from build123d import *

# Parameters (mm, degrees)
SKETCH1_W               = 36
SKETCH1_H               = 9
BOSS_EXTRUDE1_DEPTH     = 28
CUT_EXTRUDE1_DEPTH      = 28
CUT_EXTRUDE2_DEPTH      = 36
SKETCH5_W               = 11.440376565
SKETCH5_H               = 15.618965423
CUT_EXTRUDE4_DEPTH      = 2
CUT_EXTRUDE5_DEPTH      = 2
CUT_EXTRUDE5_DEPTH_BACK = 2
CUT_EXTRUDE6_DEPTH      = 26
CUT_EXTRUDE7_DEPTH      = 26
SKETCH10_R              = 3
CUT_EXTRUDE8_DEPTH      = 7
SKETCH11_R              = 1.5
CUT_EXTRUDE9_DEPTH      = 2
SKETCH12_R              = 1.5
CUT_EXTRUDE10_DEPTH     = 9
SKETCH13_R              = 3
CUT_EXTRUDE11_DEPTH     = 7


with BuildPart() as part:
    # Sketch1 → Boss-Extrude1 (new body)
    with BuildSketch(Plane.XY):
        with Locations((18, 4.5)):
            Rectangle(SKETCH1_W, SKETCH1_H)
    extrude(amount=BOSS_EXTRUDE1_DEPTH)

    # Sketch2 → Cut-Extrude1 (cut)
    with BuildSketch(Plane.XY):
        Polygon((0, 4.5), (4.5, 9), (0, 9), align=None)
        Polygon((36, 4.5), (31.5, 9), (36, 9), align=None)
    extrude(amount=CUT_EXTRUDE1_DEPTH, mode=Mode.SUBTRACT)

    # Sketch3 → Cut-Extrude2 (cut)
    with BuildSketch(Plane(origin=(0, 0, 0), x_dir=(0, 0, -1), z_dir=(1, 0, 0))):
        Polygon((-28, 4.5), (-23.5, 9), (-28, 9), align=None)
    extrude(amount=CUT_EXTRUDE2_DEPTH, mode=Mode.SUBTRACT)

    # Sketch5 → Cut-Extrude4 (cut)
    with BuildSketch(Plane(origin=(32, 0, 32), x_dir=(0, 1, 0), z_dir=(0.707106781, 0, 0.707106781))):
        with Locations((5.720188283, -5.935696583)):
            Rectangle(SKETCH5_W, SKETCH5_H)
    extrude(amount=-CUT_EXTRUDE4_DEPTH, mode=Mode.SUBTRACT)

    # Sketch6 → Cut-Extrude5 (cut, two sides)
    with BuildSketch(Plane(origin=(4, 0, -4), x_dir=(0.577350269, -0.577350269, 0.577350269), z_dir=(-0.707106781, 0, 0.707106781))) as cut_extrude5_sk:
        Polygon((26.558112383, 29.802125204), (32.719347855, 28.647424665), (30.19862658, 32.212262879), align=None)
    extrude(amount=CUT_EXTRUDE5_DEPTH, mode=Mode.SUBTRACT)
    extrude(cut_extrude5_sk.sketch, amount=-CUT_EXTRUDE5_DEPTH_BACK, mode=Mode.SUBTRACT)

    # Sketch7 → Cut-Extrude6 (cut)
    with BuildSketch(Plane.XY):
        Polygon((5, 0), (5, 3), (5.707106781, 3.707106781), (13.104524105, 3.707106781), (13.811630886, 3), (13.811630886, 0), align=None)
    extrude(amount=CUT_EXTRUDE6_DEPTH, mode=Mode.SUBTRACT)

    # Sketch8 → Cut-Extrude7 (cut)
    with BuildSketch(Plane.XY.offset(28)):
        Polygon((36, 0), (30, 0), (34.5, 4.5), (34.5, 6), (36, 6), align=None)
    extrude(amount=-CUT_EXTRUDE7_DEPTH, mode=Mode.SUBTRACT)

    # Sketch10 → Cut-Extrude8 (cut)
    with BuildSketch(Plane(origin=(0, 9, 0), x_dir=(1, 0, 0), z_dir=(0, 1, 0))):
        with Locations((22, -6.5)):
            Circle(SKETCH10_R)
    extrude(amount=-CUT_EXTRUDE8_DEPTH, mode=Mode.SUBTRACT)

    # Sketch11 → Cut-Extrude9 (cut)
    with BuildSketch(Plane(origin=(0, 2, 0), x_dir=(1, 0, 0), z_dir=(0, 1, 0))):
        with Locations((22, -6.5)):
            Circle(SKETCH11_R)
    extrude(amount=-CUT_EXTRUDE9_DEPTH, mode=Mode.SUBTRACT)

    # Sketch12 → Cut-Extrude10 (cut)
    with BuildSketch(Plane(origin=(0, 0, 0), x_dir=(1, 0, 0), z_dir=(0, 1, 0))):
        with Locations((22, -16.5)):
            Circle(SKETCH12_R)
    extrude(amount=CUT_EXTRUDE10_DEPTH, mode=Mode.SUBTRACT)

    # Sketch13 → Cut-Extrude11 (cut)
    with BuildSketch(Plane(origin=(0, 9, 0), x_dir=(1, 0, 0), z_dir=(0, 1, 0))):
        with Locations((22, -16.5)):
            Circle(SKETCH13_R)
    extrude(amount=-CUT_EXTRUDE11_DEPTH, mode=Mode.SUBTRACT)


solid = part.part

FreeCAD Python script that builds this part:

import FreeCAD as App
import Part
import Sketcher
from FreeCAD import Vector

doc = App.newDocument("Part")
body = doc.addObject("PartDesign::Body", "Body")

sketch1 = body.newObject("Sketcher::SketchObject", "Sketch")
sketch1.AttachmentSupport = (doc.getObject("XY_Plane"), [""])
sketch1.MapMode = "FlatFace"
sketch1.addGeometry(Part.LineSegment(Vector(0, 9, 0), Vector(0, 0, 0)), False)
sketch1.addGeometry(Part.LineSegment(Vector(0, 0, 0), Vector(36, 0, 0)), False)
sketch1.addGeometry(Part.LineSegment(Vector(36, 0, 0), Vector(36, 9, 0)), False)
sketch1.addGeometry(Part.LineSegment(Vector(36, 9, 0), Vector(0, 9, 0)), False)
sketch1.addConstraint(Sketcher.Constraint("Coincident", 0, 2, 1, 1))
sketch1.addConstraint(Sketcher.Constraint("Coincident", 1, 2, 2, 1))
sketch1.addConstraint(Sketcher.Constraint("Coincident", 2, 2, 3, 1))
sketch1.addConstraint(Sketcher.Constraint("Coincident", 3, 2, 0, 1))
sketch1.addConstraint(Sketcher.Constraint("Vertical", 0))
sketch1.addConstraint(Sketcher.Constraint("Horizontal", 1))
sketch1.addConstraint(Sketcher.Constraint("Vertical", 2))
sketch1.addConstraint(Sketcher.Constraint("Horizontal", 3))
sketch1.addConstraint(Sketcher.Constraint("Coincident", 0, 2, -1, 1))
sketch1.addConstraint(Sketcher.Constraint("DistanceX", 1, 1, 1, 2, 36.0))
sketch1.addConstraint(Sketcher.Constraint("DistanceY", 0, 2, 0, 1, 9.0))
pad1 = body.newObject("PartDesign::Pad", "Pad")
pad1.Profile = sketch1
pad1.Length = 28

sketch2 = body.newObject("Sketcher::SketchObject", "Sketch001")
sketch2.AttachmentSupport = (doc.getObject("XY_Plane"), [""])
sketch2.MapMode = "FlatFace"
sketch2.addGeometry(Part.LineSegment(Vector(0, 4.5, 0), Vector(4.5, 9, 0)), False)
sketch2.addGeometry(Part.LineSegment(Vector(4.5, 9, 0), Vector(0, 9, 0)), False)
sketch2.addGeometry(Part.LineSegment(Vector(0, 9, 0), Vector(0, 4.5, 0)), False)
sketch2.addGeometry(Part.LineSegment(Vector(31.5, 9, 0), Vector(36, 4.5, 0)), False)
sketch2.addGeometry(Part.LineSegment(Vector(36, 4.5, 0), Vector(36, 9, 0)), False)
sketch2.addGeometry(Part.LineSegment(Vector(36, 9, 0), Vector(31.5, 9, 0)), False)
sketch2.addConstraint(Sketcher.Constraint("Coincident", 0, 2, 1, 1))
sketch2.addConstraint(Sketcher.Constraint("Coincident", 1, 2, 2, 1))
sketch2.addConstraint(Sketcher.Constraint("Coincident", 2, 2, 0, 1))
sketch2.addConstraint(Sketcher.Constraint("Coincident", 3, 2, 4, 1))
sketch2.addConstraint(Sketcher.Constraint("Coincident", 4, 2, 5, 1))
sketch2.addConstraint(Sketcher.Constraint("Coincident", 5, 2, 3, 1))
sketch2.addConstraint(Sketcher.Constraint("Horizontal", 1))
sketch2.addConstraint(Sketcher.Constraint("Vertical", 2))
sketch2.addConstraint(Sketcher.Constraint("Vertical", 4))
sketch2.addConstraint(Sketcher.Constraint("Horizontal", 5))
sketch2.addConstraint(Sketcher.Constraint("PointOnObject", 1, 2, -2))
sketch2.addConstraint(Sketcher.Constraint("Perpendicular", 0, 3))
sketch2.addConstraint(Sketcher.Constraint("Horizontal", 2, 2, 3, 2))
sketch2.addConstraint(Sketcher.Constraint("Horizontal", 1, 2, 4, 2))
sketch2.addConstraint(Sketcher.Constraint("Equal", 1, 5))
sketch2.addConstraint(Sketcher.Constraint("DistanceX", 1, 2, 1, 1, 4.5))
sketch2.addConstraint(Sketcher.Constraint("DistanceY", -1, 1, 0, 2, 9.0))
sketch2.addConstraint(Sketcher.Constraint("DistanceX", -1, 1, 3, 2, 36.0))
pocket1 = body.newObject("PartDesign::Pocket", "Pocket")
pocket1.Profile = sketch2
pocket1.Length = 28
pocket1.Reversed = True

sketch3 = body.newObject("Sketcher::SketchObject", "Sketch002")
sketch3.AttachmentSupport = (doc.getObject("YZ_Plane"), [""])
sketch3.MapMode = "FlatFace"
sketch3.addGeometry(Part.LineSegment(Vector(4.5, 28, 0), Vector(9, 23.5, 0)), False)
sketch3.addGeometry(Part.LineSegment(Vector(9, 23.5, 0), Vector(9, 28, 0)), False)
sketch3.addGeometry(Part.LineSegment(Vector(9, 28, 0), Vector(4.5, 28, 0)), False)
sketch3.addConstraint(Sketcher.Constraint("Coincident", 0, 2, 1, 1))
sketch3.addConstraint(Sketcher.Constraint("Coincident", 1, 2, 2, 1))
sketch3.addConstraint(Sketcher.Constraint("Coincident", 2, 2, 0, 1))
sketch3.addConstraint(Sketcher.Constraint("Vertical", 1))
sketch3.addConstraint(Sketcher.Constraint("Horizontal", 2))
sketch3.addConstraint(Sketcher.Constraint("Equal", 2, 1))
sketch3.addConstraint(Sketcher.Constraint("DistanceX", 2, 2, 2, 1, 4.5))
sketch3.addConstraint(Sketcher.Constraint("DistanceX", -1, 1, 0, 2, 9.0))
sketch3.addConstraint(Sketcher.Constraint("DistanceY", -1, 1, 1, 2, 28.0))
pocket2 = body.newObject("PartDesign::Pocket", "Pocket001")
pocket2.Profile = sketch3
pocket2.Length = 36
pocket2.Reversed = True

sketch4 = body.newObject("Sketcher::SketchObject", "Sketch003")
sketch4.Placement = App.Placement(Vector(32, 0, 32), App.Rotation(Vector(0, 1, 0), Vector(-0.707106781, 0, 0.707106781), Vector(0.707106781, 0, 0.707106781), "ZXY"))
sketch4.addGeometry(Part.LineSegment(Vector(0, 2, 0), Vector(0, -14, 0)), False)
sketch4.addGeometry(Part.LineSegment(Vector(0, -14, 0), Vector(11, -14, 0)), False)
sketch4.addGeometry(Part.LineSegment(Vector(11, -14, 0), Vector(11, 2, 0)), False)
sketch4.addGeometry(Part.LineSegment(Vector(11, 2, 0), Vector(0, 2, 0)), False)
sketch4.addConstraint(Sketcher.Constraint("Coincident", 0, 2, 1, 1))
sketch4.addConstraint(Sketcher.Constraint("Coincident", 1, 2, 2, 1))
sketch4.addConstraint(Sketcher.Constraint("Coincident", 2, 2, 3, 1))
sketch4.addConstraint(Sketcher.Constraint("Coincident", 3, 2, 0, 1))
sketch4.addConstraint(Sketcher.Constraint("Vertical", 0))
sketch4.addConstraint(Sketcher.Constraint("Horizontal", 1))
sketch4.addConstraint(Sketcher.Constraint("Vertical", 2))
sketch4.addConstraint(Sketcher.Constraint("Horizontal", 3))
sketch4.addConstraint(Sketcher.Constraint("PointOnObject", 0, 2, -2))
sketch4.addConstraint(Sketcher.Constraint("DistanceX", 1, 1, 1, 2, 11.440377))
sketch4.addConstraint(Sketcher.Constraint("DistanceY", 0, 2, 0, 1, 15.618965))
sketch4.addConstraint(Sketcher.Constraint("DistanceY", 0, 2, -1, 1, 13.745179))
pocket3 = body.newObject("PartDesign::Pocket", "Pocket002")
pocket3.Profile = sketch4
pocket3.Length = 2

sketch5 = body.newObject("Sketcher::SketchObject", "Sketch004")
sketch5.Placement = App.Placement(Vector(4, 0, -4), App.Rotation(Vector(0.577350269, -0.577350269, 0.577350269), Vector(0.40824829, 0.81649658, 0.40824829), Vector(-0.707106781, 0, 0.707106781), "ZXY"))
sketch5.addGeometry(Part.LineSegment(Vector(26.6, 29.8, 0), Vector(32.7, 28.6, 0)), False)
sketch5.addGeometry(Part.LineSegment(Vector(32.7, 28.6, 0), Vector(30.2, 32.2, 0)), False)
sketch5.addGeometry(Part.LineSegment(Vector(30.2, 32.2, 0), Vector(26.6, 29.8, 0)), False)
sketch5.addConstraint(Sketcher.Constraint("Coincident", 0, 2, 1, 1))
sketch5.addConstraint(Sketcher.Constraint("Coincident", 1, 2, 2, 1))
sketch5.addConstraint(Sketcher.Constraint("Coincident", 2, 2, 0, 1))
sketch5.addConstraint(Sketcher.Constraint("Equal", 1, 2))
sketch5.addConstraint(Sketcher.Constraint("DistanceY", 0, 2, 2, 2, 1.154701))
sketch5.addConstraint(Sketcher.Constraint("DistanceX", 1, 2, 0, 2, 2.520721))
sketch5.addConstraint(Sketcher.Constraint("DistanceY", 0, 2, 1, 2, 3.564838))
sketch5.addConstraint(Sketcher.Constraint("DistanceX", -1, 1, 0, 2, 32.719348))
sketch5.addConstraint(Sketcher.Constraint("DistanceY", -1, 1, 0, 2, 28.647425))
pocket4 = body.newObject("PartDesign::Pocket", "Pocket003")
pocket4.Profile = sketch5
pocket4.Type = "ThroughAll"
pocket4.Midplane = True

sketch6 = body.newObject("Sketcher::SketchObject", "Sketch005")
sketch6.AttachmentSupport = (doc.getObject("XY_Plane"), [""])
sketch6.MapMode = "FlatFace"
sketch6.addGeometry(Part.LineSegment(Vector(5, 3, 0), Vector(5, 0, 0)), False)
sketch6.addGeometry(Part.LineSegment(Vector(5, 0, 0), Vector(13.8, 0, 0)), False)
sketch6.addGeometry(Part.LineSegment(Vector(13.8, 0, 0), Vector(13.8, 3, 0)), False)
sketch6.addGeometry(Part.LineSegment(Vector(13.8, 3, 0), Vector(13.1, 3.7, 0)), False)
sketch6.addGeometry(Part.LineSegment(Vector(13.1, 3.7, 0), Vector(5.7, 3.7, 0)), False)
sketch6.addGeometry(Part.LineSegment(Vector(5.7, 3.7, 0), Vector(5, 3, 0)), False)
sketch6.addConstraint(Sketcher.Constraint("Coincident", 0, 2, 1, 1))
sketch6.addConstraint(Sketcher.Constraint("Coincident", 1, 2, 2, 1))
sketch6.addConstraint(Sketcher.Constraint("Coincident", 2, 2, 3, 1))
sketch6.addConstraint(Sketcher.Constraint("Coincident", 3, 2, 4, 1))
sketch6.addConstraint(Sketcher.Constraint("Coincident", 4, 2, 5, 1))
sketch6.addConstraint(Sketcher.Constraint("Coincident", 5, 2, 0, 1))
sketch6.addConstraint(Sketcher.Constraint("Vertical", 0))
sketch6.addConstraint(Sketcher.Constraint("Horizontal", 1))
sketch6.addConstraint(Sketcher.Constraint("Vertical", 2))
sketch6.addConstraint(Sketcher.Constraint("Horizontal", 4))
sketch6.addConstraint(Sketcher.Constraint("PointOnObject", 0, 2, -1))
sketch6.addConstraint(Sketcher.Constraint("Perpendicular", 3, 5))
sketch6.addConstraint(Sketcher.Constraint("Horizontal", 2, 2, 5, 2))
sketch6.addConstraint(Sketcher.Constraint("Equal", 3, 5))
sketch6.addConstraint(Sketcher.Constraint("DistanceY", 0, 2, 0, 1, 3.0))
sketch6.addConstraint(Sketcher.Constraint("Distance", 3, 1.0))
sketch6.addConstraint(Sketcher.Constraint("DistanceX", -1, 1, 0, 2, 5.0))
sketch6.addConstraint(Sketcher.Constraint("DistanceX", 1, 1, 1, 2, 8.811631))
pocket5 = body.newObject("PartDesign::Pocket", "Pocket004")
pocket5.Profile = sketch6
pocket5.Length = 26
pocket5.Reversed = True

sketch7 = body.newObject("Sketcher::SketchObject", "Sketch006")
sketch7.AttachmentSupport = (doc.getObject("XY_Plane"), [""])
sketch7.MapMode = "FlatFace"
sketch7.AttachmentOffset = App.Placement(Vector(0, 0, 28), App.Rotation())
sketch7.addGeometry(Part.LineSegment(Vector(30, 0, 0), Vector(36, 0, 0)), False)
sketch7.addGeometry(Part.LineSegment(Vector(36, 0, 0), Vector(36, 6, 0)), False)
sketch7.addGeometry(Part.LineSegment(Vector(36, 6, 0), Vector(34.5, 6, 0)), False)
sketch7.addGeometry(Part.LineSegment(Vector(34.5, 6, 0), Vector(34.5, 4.5, 0)), False)
sketch7.addGeometry(Part.LineSegment(Vector(34.5, 4.5, 0), Vector(30, 0, 0)), False)
sketch7.addConstraint(Sketcher.Constraint("Coincident", 0, 2, 1, 1))
sketch7.addConstraint(Sketcher.Constraint("Coincident", 1, 2, 2, 1))
sketch7.addConstraint(Sketcher.Constraint("Coincident", 2, 2, 3, 1))
sketch7.addConstraint(Sketcher.Constraint("Coincident", 3, 2, 4, 1))
sketch7.addConstraint(Sketcher.Constraint("Coincident", 4, 2, 0, 1))
sketch7.addConstraint(Sketcher.Constraint("Horizontal", 0))
sketch7.addConstraint(Sketcher.Constraint("Vertical", 1))
sketch7.addConstraint(Sketcher.Constraint("Horizontal", 2))
sketch7.addConstraint(Sketcher.Constraint("Vertical", 3))
sketch7.addConstraint(Sketcher.Constraint("PointOnObject", 0, 2, -1))
sketch7.addConstraint(Sketcher.Constraint("Equal", 0, 1))
sketch7.addConstraint(Sketcher.Constraint("Equal", 2, 3))
sketch7.addConstraint(Sketcher.Constraint("DistanceX", 0, 1, 0, 2, 6.0))
sketch7.addConstraint(Sketcher.Constraint("DistanceX", 2, 2, 2, 1, 1.5))
sketch7.addConstraint(Sketcher.Constraint("DistanceX", -1, 1, 0, 2, 36.0))
pocket6 = body.newObject("PartDesign::Pocket", "Pocket005")
pocket6.Profile = sketch7
pocket6.Length = 26

sketch8 = body.newObject("Sketcher::SketchObject", "Sketch007")
sketch8.AttachmentSupport = (doc.getObject("XZ_Plane"), [""])
sketch8.MapMode = "FlatFace"
sketch8.AttachmentOffset = App.Placement(Vector(0, 0, -9), App.Rotation())
sketch8.addGeometry(Part.Circle(Vector(22, 6.5, 0), Vector(0, 0, 1), 3), False)
sketch8.addConstraint(Sketcher.Constraint("Diameter", 0, 6.0))
sketch8.addConstraint(Sketcher.Constraint("DistanceX", -1, 1, 0, 3, 22.0))
sketch8.addConstraint(Sketcher.Constraint("DistanceY", -1, 1, 0, 3, 6.5))
pocket7 = body.newObject("PartDesign::Pocket", "Pocket006")
pocket7.Profile = sketch8
pocket7.Length = 7
pocket7.Reversed = True

sketch9 = body.newObject("Sketcher::SketchObject", "Sketch008")
sketch9.AttachmentSupport = (doc.getObject("XZ_Plane"), [""])
sketch9.MapMode = "FlatFace"
sketch9.AttachmentOffset = App.Placement(Vector(0, 0, -2), App.Rotation())
sketch9.addGeometry(Part.Circle(Vector(22, 6.5, 0), Vector(0, 0, 1), 1.5), False)
sketch9.addConstraint(Sketcher.Constraint("Diameter", 0, 3.0))
sketch9.addConstraint(Sketcher.Constraint("DistanceX", -1, 1, 0, 3, 22.0))
sketch9.addConstraint(Sketcher.Constraint("DistanceY", -1, 1, 0, 3, 6.5))
pocket8 = body.newObject("PartDesign::Pocket", "Pocket007")
pocket8.Profile = sketch9
pocket8.Length = 2
pocket8.Reversed = True

sketch10 = body.newObject("Sketcher::SketchObject", "Sketch009")
sketch10.AttachmentSupport = (doc.getObject("XZ_Plane"), [""])
sketch10.MapMode = "FlatFace"
sketch10.addGeometry(Part.Circle(Vector(22, 16.5, 0), Vector(0, 0, 1), 1.5), False)
sketch10.addConstraint(Sketcher.Constraint("Diameter", 0, 3.0))
sketch10.addConstraint(Sketcher.Constraint("DistanceX", -1, 1, 0, 3, 22.0))
sketch10.addConstraint(Sketcher.Constraint("DistanceY", -1, 1, 0, 3, 16.5))
pocket9 = body.newObject("PartDesign::Pocket", "Pocket008")
pocket9.Profile = sketch10
pocket9.Length = 9

sketch11 = body.newObject("Sketcher::SketchObject", "Sketch010")
sketch11.AttachmentSupport = (doc.getObject("XZ_Plane"), [""])
sketch11.MapMode = "FlatFace"
sketch11.AttachmentOffset = App.Placement(Vector(0, 0, -9), App.Rotation())
sketch11.addGeometry(Part.Circle(Vector(22, 16.5, 0), Vector(0, 0, 1), 3), False)
sketch11.addConstraint(Sketcher.Constraint("Diameter", 0, 6.0))
sketch11.addConstraint(Sketcher.Constraint("DistanceX", -1, 1, 0, 3, 22.0))
sketch11.addConstraint(Sketcher.Constraint("DistanceY", -1, 1, 0, 3, 16.5))
pocket10 = body.newObject("PartDesign::Pocket", "Pocket009")
pocket10.Profile = sketch11
pocket10.Length = 7
pocket10.Reversed = True

doc.recompute()
